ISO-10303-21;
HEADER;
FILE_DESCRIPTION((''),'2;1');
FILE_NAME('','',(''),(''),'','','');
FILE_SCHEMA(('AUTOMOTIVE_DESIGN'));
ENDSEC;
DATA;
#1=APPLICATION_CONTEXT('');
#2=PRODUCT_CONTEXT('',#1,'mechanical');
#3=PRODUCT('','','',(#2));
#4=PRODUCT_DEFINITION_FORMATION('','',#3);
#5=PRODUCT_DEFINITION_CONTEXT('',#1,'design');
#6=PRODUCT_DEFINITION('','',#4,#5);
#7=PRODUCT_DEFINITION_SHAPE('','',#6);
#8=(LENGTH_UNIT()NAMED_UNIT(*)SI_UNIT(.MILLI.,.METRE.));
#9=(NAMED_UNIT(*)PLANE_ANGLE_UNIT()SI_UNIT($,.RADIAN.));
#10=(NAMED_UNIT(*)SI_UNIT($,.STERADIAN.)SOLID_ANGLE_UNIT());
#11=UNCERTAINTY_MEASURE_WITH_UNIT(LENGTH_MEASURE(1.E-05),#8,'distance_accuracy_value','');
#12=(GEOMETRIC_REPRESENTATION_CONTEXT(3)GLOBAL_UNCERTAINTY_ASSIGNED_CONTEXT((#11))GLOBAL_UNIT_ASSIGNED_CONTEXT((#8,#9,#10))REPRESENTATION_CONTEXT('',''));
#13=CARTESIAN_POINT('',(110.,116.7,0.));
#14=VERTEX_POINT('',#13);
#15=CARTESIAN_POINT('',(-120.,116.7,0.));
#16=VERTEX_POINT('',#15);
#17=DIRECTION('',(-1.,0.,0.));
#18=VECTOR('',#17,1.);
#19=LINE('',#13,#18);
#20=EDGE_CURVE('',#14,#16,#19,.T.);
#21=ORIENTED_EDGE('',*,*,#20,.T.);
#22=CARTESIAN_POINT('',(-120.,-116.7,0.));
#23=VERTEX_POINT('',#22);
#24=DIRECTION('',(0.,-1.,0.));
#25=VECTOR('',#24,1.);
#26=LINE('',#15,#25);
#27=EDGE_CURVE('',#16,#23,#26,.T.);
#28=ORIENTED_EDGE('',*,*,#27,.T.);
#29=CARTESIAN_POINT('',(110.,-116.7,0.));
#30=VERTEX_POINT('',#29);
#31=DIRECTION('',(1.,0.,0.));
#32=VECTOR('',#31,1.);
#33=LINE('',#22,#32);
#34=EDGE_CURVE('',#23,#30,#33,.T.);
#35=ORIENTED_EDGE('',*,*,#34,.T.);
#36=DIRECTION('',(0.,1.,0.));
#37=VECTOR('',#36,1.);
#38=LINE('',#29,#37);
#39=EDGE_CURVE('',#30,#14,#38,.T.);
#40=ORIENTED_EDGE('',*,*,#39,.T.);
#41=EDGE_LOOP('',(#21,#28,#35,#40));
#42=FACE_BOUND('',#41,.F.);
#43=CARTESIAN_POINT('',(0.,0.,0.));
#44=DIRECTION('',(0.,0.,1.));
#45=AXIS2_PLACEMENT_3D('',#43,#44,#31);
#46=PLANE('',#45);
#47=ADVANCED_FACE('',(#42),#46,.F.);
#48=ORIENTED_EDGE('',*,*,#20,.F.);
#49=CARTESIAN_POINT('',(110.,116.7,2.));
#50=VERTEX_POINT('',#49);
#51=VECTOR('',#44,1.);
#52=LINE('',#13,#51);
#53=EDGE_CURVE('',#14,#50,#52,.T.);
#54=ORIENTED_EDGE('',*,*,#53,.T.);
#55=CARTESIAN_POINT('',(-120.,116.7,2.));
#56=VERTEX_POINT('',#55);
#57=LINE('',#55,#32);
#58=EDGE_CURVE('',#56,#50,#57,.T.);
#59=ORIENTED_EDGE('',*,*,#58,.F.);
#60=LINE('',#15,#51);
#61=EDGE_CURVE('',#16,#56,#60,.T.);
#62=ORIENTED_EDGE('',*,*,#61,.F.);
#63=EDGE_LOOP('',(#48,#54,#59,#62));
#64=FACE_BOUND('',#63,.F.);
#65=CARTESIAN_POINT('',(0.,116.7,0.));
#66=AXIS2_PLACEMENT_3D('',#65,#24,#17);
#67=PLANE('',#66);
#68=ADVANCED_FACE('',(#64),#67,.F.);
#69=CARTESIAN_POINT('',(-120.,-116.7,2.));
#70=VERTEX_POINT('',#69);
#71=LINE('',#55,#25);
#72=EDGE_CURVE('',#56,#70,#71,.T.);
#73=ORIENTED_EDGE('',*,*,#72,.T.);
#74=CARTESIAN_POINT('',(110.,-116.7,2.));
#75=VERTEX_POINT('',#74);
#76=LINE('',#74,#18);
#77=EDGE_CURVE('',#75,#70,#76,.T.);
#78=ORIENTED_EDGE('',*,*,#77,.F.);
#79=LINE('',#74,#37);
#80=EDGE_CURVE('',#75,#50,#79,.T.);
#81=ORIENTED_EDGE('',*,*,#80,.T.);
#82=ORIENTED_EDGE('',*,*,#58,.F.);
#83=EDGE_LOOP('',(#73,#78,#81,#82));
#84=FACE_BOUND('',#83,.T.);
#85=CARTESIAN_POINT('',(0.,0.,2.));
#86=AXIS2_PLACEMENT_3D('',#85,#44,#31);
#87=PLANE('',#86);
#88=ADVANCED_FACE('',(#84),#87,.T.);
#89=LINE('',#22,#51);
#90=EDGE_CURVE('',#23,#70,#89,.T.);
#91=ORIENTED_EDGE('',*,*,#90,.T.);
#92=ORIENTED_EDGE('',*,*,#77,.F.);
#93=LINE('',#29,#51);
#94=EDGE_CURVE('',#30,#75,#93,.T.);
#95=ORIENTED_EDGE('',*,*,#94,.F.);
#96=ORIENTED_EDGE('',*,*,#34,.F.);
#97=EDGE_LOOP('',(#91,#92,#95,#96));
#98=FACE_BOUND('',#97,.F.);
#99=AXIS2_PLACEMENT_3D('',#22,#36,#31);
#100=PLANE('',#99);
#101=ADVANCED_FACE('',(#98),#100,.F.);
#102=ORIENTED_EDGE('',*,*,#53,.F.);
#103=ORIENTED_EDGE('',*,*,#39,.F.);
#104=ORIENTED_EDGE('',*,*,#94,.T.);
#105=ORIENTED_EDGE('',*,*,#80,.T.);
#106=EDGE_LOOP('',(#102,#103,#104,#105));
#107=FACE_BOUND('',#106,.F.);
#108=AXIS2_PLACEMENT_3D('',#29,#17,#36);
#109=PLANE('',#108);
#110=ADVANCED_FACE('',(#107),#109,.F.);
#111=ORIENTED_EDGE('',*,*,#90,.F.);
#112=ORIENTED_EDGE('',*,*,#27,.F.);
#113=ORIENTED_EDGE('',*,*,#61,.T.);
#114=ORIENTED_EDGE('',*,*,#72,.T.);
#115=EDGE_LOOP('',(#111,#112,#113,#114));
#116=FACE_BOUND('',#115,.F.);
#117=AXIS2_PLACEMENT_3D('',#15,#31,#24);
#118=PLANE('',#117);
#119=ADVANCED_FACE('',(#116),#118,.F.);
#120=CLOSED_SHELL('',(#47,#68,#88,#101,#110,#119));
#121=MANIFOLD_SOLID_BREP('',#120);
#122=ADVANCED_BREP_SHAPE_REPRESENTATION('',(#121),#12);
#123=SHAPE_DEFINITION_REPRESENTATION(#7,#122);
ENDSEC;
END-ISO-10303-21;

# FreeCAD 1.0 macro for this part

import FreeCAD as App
import Part
import Sketcher
from FreeCAD import Vector
Q = App.Units.Quantity

doc = App.newDocument("Part")
params = doc.addObject("Spreadsheet::Sheet", "Params")
for row, (alias, value) in enumerate([
    ("sketch1_width", "230 mm"),
    ("pad1_length", "2 mm"),
], start=1):
    params.set(f"A{row}", alias)
    params.set(f"B{row}", "=" + value)
    params.setAlias(f"B{row}", alias)

body = doc.addObject("PartDesign::Body", "Body")

sketch1 = doc.addObject("Sketcher::SketchObject", "Sketch")
body.addObject(sketch1)
sketch1.AttachmentSupport = (doc.XY_Plane, [""])
sketch1.MapMode = "FlatFace"
sketch1.addGeometry([
    Part.LineSegment(Vector(-120, 117, 0), Vector(-120, -117, 0)),
    Part.LineSegment(Vector(-120, -117, 0), Vector(110, -117, 0)),
    Part.LineSegment(Vector(110, -117, 0), Vector(110, 117, 0)),
    Part.LineSegment(Vector(110, 117, 0), Vector(-120, 117, 0)),
], False)
sketch1.addConstraint([
    Sketcher.Constraint("Coincident", 0, 2, 1, 1),
    Sketcher.Constraint("Coincident", 1, 2, 2, 1),
    Sketcher.Constraint("Coincident", 2, 2, 3, 1),
    Sketcher.Constraint("Coincident", 3, 2, 0, 1),
    Sketcher.Constraint("Vertical", 0),
    Sketcher.Constraint("Horizontal", 1),
    Sketcher.Constraint("Vertical", 2),
    Sketcher.Constraint("Horizontal", 3),
    Sketcher.Constraint("DistanceY", 0, 2, -1, 1, Q("116.7 mm")),
    Sketcher.Constraint("DistanceY", -1, 1, 2, 2, Q("116.7 mm")),
    Sketcher.Constraint("DistanceX", 1, 1, 1, 2, Q("230 mm")),
    Sketcher.Constraint("DistanceX", 0, 2, -1, 1, Q("120 mm")),
])
sketch1.setExpression("Constraints[10]", "Params.sketch1_width")
pad1 = doc.addObject("PartDesign::Pad", "Pad")
body.addObject(pad1)
pad1.Profile = sketch1
pad1.setExpression("Length", "Params.pad1_length")

doc.recompute()
